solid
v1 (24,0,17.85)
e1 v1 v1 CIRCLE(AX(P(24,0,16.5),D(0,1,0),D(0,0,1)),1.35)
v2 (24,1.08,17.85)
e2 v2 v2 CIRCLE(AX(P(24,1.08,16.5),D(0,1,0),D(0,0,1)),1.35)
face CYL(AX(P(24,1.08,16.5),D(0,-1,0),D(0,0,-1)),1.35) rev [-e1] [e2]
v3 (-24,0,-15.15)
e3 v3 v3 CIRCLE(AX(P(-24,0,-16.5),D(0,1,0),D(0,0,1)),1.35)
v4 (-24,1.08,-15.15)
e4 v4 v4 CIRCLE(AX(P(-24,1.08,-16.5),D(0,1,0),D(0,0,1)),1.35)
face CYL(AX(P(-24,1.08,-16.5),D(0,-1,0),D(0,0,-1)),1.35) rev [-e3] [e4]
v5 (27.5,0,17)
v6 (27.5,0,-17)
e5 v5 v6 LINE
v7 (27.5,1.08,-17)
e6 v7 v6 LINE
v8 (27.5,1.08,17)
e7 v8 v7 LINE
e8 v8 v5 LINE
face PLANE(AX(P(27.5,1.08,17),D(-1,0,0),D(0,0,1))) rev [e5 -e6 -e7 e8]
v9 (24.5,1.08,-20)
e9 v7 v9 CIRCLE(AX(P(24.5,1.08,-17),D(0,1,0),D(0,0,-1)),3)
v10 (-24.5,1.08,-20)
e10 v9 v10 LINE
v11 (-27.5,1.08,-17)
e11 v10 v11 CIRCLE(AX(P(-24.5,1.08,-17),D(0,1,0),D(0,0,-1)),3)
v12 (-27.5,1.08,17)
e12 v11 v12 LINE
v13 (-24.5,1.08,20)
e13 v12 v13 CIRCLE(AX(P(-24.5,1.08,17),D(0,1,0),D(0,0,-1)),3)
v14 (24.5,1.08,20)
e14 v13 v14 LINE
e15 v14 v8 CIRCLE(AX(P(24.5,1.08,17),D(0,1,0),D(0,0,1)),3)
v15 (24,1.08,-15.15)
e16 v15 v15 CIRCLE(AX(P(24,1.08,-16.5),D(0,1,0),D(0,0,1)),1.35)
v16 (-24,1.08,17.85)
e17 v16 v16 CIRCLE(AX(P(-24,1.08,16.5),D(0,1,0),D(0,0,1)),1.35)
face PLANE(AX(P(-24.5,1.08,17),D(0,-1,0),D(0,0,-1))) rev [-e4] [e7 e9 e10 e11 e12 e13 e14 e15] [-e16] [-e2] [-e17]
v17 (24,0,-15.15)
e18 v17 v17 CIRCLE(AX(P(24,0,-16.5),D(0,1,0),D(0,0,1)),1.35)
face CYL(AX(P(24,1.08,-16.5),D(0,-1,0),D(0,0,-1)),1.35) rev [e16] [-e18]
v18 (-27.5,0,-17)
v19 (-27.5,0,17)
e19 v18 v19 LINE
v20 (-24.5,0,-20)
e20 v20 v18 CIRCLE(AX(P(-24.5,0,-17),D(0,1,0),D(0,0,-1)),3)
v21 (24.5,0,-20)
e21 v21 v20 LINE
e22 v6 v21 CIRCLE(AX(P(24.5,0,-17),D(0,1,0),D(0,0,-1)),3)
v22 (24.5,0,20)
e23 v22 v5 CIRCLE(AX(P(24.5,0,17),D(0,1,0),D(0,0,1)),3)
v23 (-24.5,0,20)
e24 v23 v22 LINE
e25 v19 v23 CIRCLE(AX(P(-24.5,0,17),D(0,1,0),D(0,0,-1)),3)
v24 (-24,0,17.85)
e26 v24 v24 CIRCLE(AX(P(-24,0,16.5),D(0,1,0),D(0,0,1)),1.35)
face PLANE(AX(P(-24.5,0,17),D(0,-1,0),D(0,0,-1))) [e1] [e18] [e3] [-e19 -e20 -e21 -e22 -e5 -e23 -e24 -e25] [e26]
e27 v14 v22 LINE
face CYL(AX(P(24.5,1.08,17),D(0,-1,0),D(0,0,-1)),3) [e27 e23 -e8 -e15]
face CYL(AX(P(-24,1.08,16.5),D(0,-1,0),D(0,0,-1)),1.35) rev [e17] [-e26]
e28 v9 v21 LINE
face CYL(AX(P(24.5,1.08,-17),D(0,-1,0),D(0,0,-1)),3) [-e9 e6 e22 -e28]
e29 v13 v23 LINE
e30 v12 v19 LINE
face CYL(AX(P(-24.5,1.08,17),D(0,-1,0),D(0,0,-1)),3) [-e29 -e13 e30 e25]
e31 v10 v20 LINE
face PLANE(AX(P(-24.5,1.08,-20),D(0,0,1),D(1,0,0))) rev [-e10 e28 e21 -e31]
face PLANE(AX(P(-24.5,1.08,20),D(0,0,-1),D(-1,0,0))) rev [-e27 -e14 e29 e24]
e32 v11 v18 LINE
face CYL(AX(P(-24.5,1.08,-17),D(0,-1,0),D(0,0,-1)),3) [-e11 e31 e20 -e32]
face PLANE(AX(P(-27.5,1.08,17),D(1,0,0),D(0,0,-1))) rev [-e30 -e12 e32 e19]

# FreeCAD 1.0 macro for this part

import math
import FreeCAD as App
import Part
import Sketcher

doc = App.newDocument("Part")
body = doc.addObject("PartDesign::Body", "Body")

# Sketch on XZ plane
sketch1 = body.newObject("Sketcher::SketchObject", "Sketch")
sketch1.AttachmentSupport = (doc.getObject("XZ_Plane"), [""])
sketch1.MapMode = "FlatFace"
sketch1.addGeometry([
    Part.LineSegment(App.Vector(-24.5, 20, 0), App.Vector(24.5, 20, 0)),  # 0
    Part.ArcOfCircle(Part.Circle(App.Vector(24.5, 17, 0), App.Vector(0, 0, 1), 3), math.radians(0), math.radians(90)),  # 1
    Part.LineSegment(App.Vector(27.5, 17, 0), App.Vector(27.5, -17, 0)),  # 2
    Part.ArcOfCircle(Part.Circle(App.Vector(24.5, -17, 0), App.Vector(0, 0, 1), 3), math.radians(-90), math.radians(0)),  # 3
    Part.LineSegment(App.Vector(24.5, -20, 0), App.Vector(-24.5, -20, 0)),  # 4
    Part.ArcOfCircle(Part.Circle(App.Vector(-24.5, -17, 0), App.Vector(0, 0, 1), 3), math.radians(180), math.radians(270)),  # 5
    Part.LineSegment(App.Vector(-27.5, -17, 0), App.Vector(-27.5, 17, 0)),  # 6
    Part.ArcOfCircle(Part.Circle(App.Vector(-24.5, 17, 0), App.Vector(0, 0, 1), 3), math.radians(90), math.radians(180)),  # 7
    Part.Circle(App.Vector(-24, 16.5, 0), App.Vector(0, 0, 1), 1.4),  # 8
    Part.Circle(App.Vector(24, 16.5, 0), App.Vector(0, 0, 1), 1.4),  # 9
    Part.Circle(App.Vector(-24, -16.5, 0), App.Vector(0, 0, 1), 1.4),  # 10
    Part.Circle(App.Vector(24, -16.5, 0), App.Vector(0, 0, 1), 1.4),  # 11
], False)
sketch1.addConstraint([
    Sketcher.Constraint("Tangent", 0, 2, 1, 2),
    Sketcher.Constraint("Tangent", 1, 1, 2, 1),
    Sketcher.Constraint("Tangent", 2, 2, 3, 2),
    Sketcher.Constraint("Tangent", 3, 1, 4, 1),
    Sketcher.Constraint("Tangent", 4, 2, 5, 2),
    Sketcher.Constraint("Tangent", 5, 1, 6, 1),
    Sketcher.Constraint("Tangent", 6, 2, 7, 2),
    Sketcher.Constraint("Tangent", 7, 1, 0, 1),
    Sketcher.Constraint("Horizontal", 0),
    Sketcher.Constraint("Vertical", 2),
    Sketcher.Constraint("Horizontal", 4),
    Sketcher.Constraint("Vertical", 6),
    Sketcher.Constraint("Equal", 1, 3),
    Sketcher.Constraint("Equal", 3, 5),
    Sketcher.Constraint("Equal", 5, 7),
    Sketcher.Constraint("Equal", 8, 9),
    Sketcher.Constraint("Equal", 9, 10),
    Sketcher.Constraint("Equal", 10, 11),
    Sketcher.Constraint("Symmetric", 1, 3, 5, 3, -1, 1),
    Sketcher.Constraint("Symmetric", 9, 3, 10, 3, -1, 1),
    Sketcher.Constraint("Symmetric", 8, 3, 11, 3, -1, 1),
    Sketcher.Constraint("Symmetric", 8, 3, 9, 3, -2),
    Sketcher.Constraint("Radius", 1, 3.0),
    Sketcher.Constraint("Diameter", 8, 2.7),
    Sketcher.Constraint("DistanceX", 0, 1, 0, 2, 49.0),
    Sketcher.Constraint("DistanceY", 2, 2, 2, 1, 34.0),
    Sketcher.Constraint("DistanceX", 8, 3, -1, 1, 24.0),
    Sketcher.Constraint("DistanceY", 10, 3, 8, 3, 33.0),
])
pad1 = body.newObject("PartDesign::Pad", "Pad")
pad1.Profile = sketch1
pad1.Length = 1.08
pad1.Reversed = True

doc.recompute()
